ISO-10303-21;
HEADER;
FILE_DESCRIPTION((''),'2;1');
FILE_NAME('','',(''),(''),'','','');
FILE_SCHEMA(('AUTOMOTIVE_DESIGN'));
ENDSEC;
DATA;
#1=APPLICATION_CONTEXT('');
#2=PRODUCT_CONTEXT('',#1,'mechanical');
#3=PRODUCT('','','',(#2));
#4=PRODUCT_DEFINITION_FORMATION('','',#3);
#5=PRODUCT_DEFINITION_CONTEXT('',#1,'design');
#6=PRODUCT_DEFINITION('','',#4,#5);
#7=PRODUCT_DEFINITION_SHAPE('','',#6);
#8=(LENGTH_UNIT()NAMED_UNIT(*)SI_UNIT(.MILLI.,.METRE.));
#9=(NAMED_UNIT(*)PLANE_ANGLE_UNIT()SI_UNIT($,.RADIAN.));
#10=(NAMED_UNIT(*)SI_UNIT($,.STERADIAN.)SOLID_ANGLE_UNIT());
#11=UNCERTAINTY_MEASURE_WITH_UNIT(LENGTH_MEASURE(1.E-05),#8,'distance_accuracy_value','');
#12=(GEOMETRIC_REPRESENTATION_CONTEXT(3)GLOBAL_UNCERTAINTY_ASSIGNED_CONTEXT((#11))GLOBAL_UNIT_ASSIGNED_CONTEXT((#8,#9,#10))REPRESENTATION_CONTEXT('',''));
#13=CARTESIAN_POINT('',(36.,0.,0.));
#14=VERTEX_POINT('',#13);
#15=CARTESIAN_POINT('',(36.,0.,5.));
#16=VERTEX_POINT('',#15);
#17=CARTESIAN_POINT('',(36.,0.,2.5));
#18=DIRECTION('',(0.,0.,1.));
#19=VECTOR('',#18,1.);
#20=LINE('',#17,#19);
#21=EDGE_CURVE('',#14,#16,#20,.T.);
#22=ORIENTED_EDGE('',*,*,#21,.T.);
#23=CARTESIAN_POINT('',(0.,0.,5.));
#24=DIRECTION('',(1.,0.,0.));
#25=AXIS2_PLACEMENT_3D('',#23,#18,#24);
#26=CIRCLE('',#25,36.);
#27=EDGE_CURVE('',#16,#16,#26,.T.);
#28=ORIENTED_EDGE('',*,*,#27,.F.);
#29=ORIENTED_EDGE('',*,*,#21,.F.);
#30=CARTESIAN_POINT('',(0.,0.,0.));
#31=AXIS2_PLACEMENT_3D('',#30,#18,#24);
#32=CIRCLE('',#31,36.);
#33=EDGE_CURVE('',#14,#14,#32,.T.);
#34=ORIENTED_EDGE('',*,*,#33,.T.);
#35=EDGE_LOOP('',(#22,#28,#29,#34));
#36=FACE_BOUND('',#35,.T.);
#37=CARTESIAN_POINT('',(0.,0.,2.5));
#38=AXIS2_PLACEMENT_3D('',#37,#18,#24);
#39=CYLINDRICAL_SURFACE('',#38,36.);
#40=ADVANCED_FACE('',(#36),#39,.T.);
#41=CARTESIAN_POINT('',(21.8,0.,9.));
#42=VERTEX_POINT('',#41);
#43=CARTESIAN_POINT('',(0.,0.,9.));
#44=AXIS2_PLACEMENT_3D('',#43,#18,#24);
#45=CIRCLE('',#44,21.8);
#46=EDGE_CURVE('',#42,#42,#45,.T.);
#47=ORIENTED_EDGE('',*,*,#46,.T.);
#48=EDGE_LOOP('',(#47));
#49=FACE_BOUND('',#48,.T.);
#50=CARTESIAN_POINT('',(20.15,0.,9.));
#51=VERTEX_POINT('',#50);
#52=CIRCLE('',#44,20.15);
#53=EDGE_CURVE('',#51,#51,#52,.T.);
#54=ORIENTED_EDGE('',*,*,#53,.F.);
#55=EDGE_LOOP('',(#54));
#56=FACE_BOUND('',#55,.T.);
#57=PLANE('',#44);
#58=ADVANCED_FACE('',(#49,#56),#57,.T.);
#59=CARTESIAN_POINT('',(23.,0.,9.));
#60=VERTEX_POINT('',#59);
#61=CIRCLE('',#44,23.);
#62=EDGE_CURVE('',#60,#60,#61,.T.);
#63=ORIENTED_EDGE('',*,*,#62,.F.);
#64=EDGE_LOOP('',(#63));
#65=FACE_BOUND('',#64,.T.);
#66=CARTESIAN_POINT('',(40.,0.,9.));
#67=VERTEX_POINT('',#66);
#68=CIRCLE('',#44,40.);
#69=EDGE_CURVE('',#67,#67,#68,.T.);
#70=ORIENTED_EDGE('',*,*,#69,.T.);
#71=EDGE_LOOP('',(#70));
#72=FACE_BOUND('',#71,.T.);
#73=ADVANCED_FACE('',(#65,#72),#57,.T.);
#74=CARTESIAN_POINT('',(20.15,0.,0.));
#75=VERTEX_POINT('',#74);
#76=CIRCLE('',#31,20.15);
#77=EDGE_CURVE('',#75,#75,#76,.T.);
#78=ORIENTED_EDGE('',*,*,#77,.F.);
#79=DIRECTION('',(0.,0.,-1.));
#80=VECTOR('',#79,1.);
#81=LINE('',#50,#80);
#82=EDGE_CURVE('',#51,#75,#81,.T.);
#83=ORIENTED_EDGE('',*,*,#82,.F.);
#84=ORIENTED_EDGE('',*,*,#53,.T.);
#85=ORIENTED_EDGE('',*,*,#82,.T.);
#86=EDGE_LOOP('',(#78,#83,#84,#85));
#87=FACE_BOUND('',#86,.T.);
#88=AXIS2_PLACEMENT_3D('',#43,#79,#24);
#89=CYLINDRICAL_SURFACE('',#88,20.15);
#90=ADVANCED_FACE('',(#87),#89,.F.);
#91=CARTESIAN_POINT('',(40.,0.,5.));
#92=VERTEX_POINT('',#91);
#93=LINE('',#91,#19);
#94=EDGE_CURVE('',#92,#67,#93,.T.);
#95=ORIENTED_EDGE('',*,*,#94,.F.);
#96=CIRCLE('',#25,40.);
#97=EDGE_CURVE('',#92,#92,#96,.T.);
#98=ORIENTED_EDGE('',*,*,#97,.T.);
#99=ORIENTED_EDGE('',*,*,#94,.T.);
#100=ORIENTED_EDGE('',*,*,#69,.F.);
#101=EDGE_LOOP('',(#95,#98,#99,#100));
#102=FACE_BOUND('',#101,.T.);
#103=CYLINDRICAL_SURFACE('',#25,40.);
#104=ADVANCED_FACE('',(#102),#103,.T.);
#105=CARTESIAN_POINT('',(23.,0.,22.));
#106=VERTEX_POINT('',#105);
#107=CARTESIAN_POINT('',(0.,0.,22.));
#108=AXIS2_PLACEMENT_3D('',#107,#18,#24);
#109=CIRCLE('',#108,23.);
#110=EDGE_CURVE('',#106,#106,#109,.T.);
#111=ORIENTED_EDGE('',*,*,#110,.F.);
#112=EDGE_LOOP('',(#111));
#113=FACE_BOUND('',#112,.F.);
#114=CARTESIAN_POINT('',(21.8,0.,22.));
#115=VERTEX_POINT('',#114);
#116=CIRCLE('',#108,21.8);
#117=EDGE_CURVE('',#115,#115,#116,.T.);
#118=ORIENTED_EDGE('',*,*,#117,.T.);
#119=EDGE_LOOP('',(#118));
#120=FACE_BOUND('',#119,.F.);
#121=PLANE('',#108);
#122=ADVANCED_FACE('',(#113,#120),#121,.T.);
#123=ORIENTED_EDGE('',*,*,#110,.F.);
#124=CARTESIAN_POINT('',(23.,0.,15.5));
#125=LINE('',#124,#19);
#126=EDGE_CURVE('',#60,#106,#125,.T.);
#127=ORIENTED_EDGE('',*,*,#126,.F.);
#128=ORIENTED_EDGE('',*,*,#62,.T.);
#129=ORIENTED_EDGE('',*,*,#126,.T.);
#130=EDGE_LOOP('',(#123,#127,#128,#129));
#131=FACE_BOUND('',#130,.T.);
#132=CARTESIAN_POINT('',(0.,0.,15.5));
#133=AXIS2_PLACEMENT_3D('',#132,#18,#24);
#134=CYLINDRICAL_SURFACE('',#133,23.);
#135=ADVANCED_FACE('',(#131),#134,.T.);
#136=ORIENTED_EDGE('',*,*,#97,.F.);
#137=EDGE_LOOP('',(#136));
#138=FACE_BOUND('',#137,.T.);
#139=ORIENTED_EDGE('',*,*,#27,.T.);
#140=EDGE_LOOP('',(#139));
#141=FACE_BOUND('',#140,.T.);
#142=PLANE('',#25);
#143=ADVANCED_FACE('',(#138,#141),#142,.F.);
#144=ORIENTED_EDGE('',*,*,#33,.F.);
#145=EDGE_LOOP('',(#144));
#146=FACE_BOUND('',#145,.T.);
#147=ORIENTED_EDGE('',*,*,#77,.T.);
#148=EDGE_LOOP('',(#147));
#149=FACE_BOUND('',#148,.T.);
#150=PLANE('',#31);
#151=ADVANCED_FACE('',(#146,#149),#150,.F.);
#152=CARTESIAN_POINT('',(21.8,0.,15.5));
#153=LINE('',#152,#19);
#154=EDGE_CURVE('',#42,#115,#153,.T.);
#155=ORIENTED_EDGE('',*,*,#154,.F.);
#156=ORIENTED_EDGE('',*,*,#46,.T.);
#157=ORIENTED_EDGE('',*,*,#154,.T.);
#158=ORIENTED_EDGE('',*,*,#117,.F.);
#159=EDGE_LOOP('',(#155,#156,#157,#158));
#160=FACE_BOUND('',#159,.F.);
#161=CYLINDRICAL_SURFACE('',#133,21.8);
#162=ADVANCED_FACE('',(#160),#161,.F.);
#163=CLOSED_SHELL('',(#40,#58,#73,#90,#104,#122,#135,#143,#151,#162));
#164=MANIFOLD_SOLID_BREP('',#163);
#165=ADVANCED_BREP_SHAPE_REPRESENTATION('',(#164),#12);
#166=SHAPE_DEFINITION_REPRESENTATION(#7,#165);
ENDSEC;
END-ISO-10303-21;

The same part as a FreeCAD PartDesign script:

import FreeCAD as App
import Part
import Sketcher
from FreeCAD import Vector
Q = App.Units.Quantity


def add_polygon(sketch, points):
    """Adds a closed chain of lines whose ends are joined by coincident constraints."""
    first, n = sketch.GeometryCount, len(points)
    for a, b in zip(points, points[1:] + points[:1]):
        sketch.addGeometry(Part.LineSegment(App.Vector(*a, 0), App.Vector(*b, 0)), False)
    for i in range(n):
        sketch.addConstraint(Sketcher.Constraint("Coincident", first + i, 2, first + (i + 1) % n, 1))

doc = App.newDocument("Part")
body = doc.addObject("PartDesign::Body", "Body")

sketch1 = doc.addObject("Sketcher::SketchObject", "Sketch")
body.addObject(sketch1)
sketch1.AttachmentSupport = (doc.XZ_Plane, [""])
sketch1.MapMode = "FlatFace"
add_polygon(sketch1, [(36, 0), (36, 5), (40, 5), (40, 9), (23, 9), (23, 22), (21.8, 22), (21.8, 9), (20.1, 9), (20.1, 0)])
sketch1.addConstraint(Sketcher.Constraint("Vertical", 0))
sketch1.addConstraint(Sketcher.Constraint("Horizontal", 1))
sketch1.addConstraint(Sketcher.Constraint("Vertical", 2))
sketch1.addConstraint(Sketcher.Constraint("Horizontal", 3))
sketch1.addConstraint(Sketcher.Constraint("Vertical", 4))
sketch1.addConstraint(Sketcher.Constraint("Horizontal", 5))
sketch1.addConstraint(Sketcher.Constraint("Vertical", 6))
sketch1.addConstraint(Sketcher.Constraint("Horizontal", 7))
sketch1.addConstraint(Sketcher.Constraint("Vertical", 8))
sketch1.addConstraint(Sketcher.Constraint("Horizontal", 9))
sketch1.addConstraint(Sketcher.Constraint("PointOnObject", 8, 2, -1))
sketch1.addConstraint(Sketcher.Constraint("Horizontal", 3, 2, 6, 2))
sketch1.addConstraint(Sketcher.Constraint("Equal", 1, 2))
sketch1.addConstraint(Sketcher.Constraint("DistanceX", 1, 1, 1, 2, Q("4 mm")))
sketch1.addConstraint(Sketcher.Constraint("DistanceX", 3, 2, 3, 1, Q("17 mm")))
sketch1.addConstraint(Sketcher.Constraint("DistanceY", 0, 1, 0, 2, Q("5 mm")))
sketch1.addConstraint(Sketcher.Constraint("DistanceY", 4, 1, 4, 2, Q("13 mm")))
sketch1.addConstraint(Sketcher.Constraint("DistanceX", 5, 2, 5, 1, Q("1.2 mm")))
sketch1.addConstraint(Sketcher.Constraint("DistanceX", -1, 1, 0, 2, Q("36 mm")))
sketch1.addConstraint(Sketcher.Constraint("DistanceX", 7, 2, 7, 1, Q("1.65 mm")))
revolution = doc.addObject("PartDesign::Revolution", "Revolution")
body.addObject(revolution)
revolution.Profile = sketch1
revolution.ReferenceAxis = (sketch1, ["V_Axis"])
revolution.Angle = 360

doc.recompute()
